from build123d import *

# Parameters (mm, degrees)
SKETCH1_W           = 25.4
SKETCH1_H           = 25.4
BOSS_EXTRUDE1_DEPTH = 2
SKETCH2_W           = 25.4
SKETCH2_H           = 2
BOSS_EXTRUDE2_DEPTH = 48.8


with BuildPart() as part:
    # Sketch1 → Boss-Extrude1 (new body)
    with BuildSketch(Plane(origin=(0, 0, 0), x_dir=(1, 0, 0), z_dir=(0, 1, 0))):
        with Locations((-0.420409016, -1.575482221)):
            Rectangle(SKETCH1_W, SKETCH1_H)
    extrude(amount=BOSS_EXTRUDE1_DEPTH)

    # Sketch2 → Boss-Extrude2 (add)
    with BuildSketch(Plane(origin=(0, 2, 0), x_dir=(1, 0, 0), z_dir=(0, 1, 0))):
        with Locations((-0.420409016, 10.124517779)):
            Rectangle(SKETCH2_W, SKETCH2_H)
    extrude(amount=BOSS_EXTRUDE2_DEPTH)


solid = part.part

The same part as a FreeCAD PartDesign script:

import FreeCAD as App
import Part
import Sketcher

V = App.Vector
Q = App.Units.Quantity

doc = App.newDocument("Part")
body = doc.addObject("PartDesign::Body", "Body")

sketch1 = body.newObject("Sketcher::SketchObject", "Sketch")
sketch1.AttachmentSupport = (doc.getObject("XZ_Plane"), [""])
sketch1.MapMode = "FlatFace"
sketch1.addGeometry([
    Part.LineSegment(V(-13.120409, -11.124518, 0), V(-13.120409, 14.275482, 0)),
    Part.LineSegment(V(-13.120409, 14.275482, 0), V(12.279591, 14.275482, 0)),
    Part.LineSegment(V(12.279591, 14.275482, 0), V(12.279591, -11.124518, 0)),
    Part.LineSegment(V(12.279591, -11.124518, 0), V(-13.120409, -11.124518, 0)),
], False)
sketch1.addConstraint([
    Sketcher.Constraint("Coincident", 0, 2, 1, 1),
    Sketcher.Constraint("Coincident", 1, 2, 2, 1),
    Sketcher.Constraint("Coincident", 2, 2, 3, 1),
    Sketcher.Constraint("Coincident", 3, 2, 0, 1),
    Sketcher.Constraint("Vertical", 0),
    Sketcher.Constraint("Horizontal", 1),
    Sketcher.Constraint("Vertical", 2),
    Sketcher.Constraint("Horizontal", 3),
    Sketcher.Constraint("Equal", 3, 0),
    Sketcher.Constraint("DistanceX", 1, 1, 1, 2, Q("25.4 mm")),
    Sketcher.Constraint("DistanceX", 0, 2, -1, 1, Q("13.120409 mm")),
    Sketcher.Constraint("DistanceY", -1, 1, 0, 2, Q("14.275482 mm")),
])
pad1 = body.newObject("PartDesign::Pad", "Pad")
pad1.Profile = sketch1
pad1.Length = 2
pad1.Reversed = True

sketch2 = body.newObject("Sketcher::SketchObject", "Sketch001")
sketch2.AttachmentSupport = (doc.getObject("XZ_Plane"), [""])
sketch2.MapMode = "FlatFace"
sketch2.AttachmentOffset = App.Placement(V(0, 0, -2), App.Rotation())
sketch2.addGeometry([
    Part.LineSegment(V(-13.120409, -11.124518, 0), V(-13.120409, -9.124518, 0)),
    Part.LineSegment(V(-13.120409, -9.124518, 0), V(12.279591, -9.124518, 0)),
    Part.LineSegment(V(12.279591, -9.124518, 0), V(12.279591, -11.124518, 0)),
    Part.LineSegment(V(12.279591, -11.124518, 0), V(-13.120409, -11.124518, 0)),
], False)
sketch2.addConstraint([
    Sketcher.Constraint("Coincident", 0, 2, 1, 1),
    Sketcher.Constraint("Coincident", 1, 2, 2, 1),
    Sketcher.Constraint("Coincident", 2, 2, 3, 1),
    Sketcher.Constraint("Coincident", 3, 2, 0, 1),
    Sketcher.Constraint("Vertical", 0),
    Sketcher.Constraint("Horizontal", 1),
    Sketcher.Constraint("Vertical", 2),
    Sketcher.Constraint("Horizontal", 3),
    Sketcher.Constraint("DistanceY", 0, 1, 0, 2, Q("2 mm")),
    Sketcher.Constraint("DistanceX", 1, 1, 1, 2, Q("25.4 mm")),
    Sketcher.Constraint("DistanceX", 0, 2, -1, 1, Q("13.120409 mm")),
    Sketcher.Constraint("DistanceY", 0, 2, -1, 1, Q("9.124518 mm")),
])
pad2 = body.newObject("PartDesign::Pad", "Pad001")
pad2.Profile = sketch2
pad2.Length = 48.8
pad2.Reversed = True

doc.recompute()
